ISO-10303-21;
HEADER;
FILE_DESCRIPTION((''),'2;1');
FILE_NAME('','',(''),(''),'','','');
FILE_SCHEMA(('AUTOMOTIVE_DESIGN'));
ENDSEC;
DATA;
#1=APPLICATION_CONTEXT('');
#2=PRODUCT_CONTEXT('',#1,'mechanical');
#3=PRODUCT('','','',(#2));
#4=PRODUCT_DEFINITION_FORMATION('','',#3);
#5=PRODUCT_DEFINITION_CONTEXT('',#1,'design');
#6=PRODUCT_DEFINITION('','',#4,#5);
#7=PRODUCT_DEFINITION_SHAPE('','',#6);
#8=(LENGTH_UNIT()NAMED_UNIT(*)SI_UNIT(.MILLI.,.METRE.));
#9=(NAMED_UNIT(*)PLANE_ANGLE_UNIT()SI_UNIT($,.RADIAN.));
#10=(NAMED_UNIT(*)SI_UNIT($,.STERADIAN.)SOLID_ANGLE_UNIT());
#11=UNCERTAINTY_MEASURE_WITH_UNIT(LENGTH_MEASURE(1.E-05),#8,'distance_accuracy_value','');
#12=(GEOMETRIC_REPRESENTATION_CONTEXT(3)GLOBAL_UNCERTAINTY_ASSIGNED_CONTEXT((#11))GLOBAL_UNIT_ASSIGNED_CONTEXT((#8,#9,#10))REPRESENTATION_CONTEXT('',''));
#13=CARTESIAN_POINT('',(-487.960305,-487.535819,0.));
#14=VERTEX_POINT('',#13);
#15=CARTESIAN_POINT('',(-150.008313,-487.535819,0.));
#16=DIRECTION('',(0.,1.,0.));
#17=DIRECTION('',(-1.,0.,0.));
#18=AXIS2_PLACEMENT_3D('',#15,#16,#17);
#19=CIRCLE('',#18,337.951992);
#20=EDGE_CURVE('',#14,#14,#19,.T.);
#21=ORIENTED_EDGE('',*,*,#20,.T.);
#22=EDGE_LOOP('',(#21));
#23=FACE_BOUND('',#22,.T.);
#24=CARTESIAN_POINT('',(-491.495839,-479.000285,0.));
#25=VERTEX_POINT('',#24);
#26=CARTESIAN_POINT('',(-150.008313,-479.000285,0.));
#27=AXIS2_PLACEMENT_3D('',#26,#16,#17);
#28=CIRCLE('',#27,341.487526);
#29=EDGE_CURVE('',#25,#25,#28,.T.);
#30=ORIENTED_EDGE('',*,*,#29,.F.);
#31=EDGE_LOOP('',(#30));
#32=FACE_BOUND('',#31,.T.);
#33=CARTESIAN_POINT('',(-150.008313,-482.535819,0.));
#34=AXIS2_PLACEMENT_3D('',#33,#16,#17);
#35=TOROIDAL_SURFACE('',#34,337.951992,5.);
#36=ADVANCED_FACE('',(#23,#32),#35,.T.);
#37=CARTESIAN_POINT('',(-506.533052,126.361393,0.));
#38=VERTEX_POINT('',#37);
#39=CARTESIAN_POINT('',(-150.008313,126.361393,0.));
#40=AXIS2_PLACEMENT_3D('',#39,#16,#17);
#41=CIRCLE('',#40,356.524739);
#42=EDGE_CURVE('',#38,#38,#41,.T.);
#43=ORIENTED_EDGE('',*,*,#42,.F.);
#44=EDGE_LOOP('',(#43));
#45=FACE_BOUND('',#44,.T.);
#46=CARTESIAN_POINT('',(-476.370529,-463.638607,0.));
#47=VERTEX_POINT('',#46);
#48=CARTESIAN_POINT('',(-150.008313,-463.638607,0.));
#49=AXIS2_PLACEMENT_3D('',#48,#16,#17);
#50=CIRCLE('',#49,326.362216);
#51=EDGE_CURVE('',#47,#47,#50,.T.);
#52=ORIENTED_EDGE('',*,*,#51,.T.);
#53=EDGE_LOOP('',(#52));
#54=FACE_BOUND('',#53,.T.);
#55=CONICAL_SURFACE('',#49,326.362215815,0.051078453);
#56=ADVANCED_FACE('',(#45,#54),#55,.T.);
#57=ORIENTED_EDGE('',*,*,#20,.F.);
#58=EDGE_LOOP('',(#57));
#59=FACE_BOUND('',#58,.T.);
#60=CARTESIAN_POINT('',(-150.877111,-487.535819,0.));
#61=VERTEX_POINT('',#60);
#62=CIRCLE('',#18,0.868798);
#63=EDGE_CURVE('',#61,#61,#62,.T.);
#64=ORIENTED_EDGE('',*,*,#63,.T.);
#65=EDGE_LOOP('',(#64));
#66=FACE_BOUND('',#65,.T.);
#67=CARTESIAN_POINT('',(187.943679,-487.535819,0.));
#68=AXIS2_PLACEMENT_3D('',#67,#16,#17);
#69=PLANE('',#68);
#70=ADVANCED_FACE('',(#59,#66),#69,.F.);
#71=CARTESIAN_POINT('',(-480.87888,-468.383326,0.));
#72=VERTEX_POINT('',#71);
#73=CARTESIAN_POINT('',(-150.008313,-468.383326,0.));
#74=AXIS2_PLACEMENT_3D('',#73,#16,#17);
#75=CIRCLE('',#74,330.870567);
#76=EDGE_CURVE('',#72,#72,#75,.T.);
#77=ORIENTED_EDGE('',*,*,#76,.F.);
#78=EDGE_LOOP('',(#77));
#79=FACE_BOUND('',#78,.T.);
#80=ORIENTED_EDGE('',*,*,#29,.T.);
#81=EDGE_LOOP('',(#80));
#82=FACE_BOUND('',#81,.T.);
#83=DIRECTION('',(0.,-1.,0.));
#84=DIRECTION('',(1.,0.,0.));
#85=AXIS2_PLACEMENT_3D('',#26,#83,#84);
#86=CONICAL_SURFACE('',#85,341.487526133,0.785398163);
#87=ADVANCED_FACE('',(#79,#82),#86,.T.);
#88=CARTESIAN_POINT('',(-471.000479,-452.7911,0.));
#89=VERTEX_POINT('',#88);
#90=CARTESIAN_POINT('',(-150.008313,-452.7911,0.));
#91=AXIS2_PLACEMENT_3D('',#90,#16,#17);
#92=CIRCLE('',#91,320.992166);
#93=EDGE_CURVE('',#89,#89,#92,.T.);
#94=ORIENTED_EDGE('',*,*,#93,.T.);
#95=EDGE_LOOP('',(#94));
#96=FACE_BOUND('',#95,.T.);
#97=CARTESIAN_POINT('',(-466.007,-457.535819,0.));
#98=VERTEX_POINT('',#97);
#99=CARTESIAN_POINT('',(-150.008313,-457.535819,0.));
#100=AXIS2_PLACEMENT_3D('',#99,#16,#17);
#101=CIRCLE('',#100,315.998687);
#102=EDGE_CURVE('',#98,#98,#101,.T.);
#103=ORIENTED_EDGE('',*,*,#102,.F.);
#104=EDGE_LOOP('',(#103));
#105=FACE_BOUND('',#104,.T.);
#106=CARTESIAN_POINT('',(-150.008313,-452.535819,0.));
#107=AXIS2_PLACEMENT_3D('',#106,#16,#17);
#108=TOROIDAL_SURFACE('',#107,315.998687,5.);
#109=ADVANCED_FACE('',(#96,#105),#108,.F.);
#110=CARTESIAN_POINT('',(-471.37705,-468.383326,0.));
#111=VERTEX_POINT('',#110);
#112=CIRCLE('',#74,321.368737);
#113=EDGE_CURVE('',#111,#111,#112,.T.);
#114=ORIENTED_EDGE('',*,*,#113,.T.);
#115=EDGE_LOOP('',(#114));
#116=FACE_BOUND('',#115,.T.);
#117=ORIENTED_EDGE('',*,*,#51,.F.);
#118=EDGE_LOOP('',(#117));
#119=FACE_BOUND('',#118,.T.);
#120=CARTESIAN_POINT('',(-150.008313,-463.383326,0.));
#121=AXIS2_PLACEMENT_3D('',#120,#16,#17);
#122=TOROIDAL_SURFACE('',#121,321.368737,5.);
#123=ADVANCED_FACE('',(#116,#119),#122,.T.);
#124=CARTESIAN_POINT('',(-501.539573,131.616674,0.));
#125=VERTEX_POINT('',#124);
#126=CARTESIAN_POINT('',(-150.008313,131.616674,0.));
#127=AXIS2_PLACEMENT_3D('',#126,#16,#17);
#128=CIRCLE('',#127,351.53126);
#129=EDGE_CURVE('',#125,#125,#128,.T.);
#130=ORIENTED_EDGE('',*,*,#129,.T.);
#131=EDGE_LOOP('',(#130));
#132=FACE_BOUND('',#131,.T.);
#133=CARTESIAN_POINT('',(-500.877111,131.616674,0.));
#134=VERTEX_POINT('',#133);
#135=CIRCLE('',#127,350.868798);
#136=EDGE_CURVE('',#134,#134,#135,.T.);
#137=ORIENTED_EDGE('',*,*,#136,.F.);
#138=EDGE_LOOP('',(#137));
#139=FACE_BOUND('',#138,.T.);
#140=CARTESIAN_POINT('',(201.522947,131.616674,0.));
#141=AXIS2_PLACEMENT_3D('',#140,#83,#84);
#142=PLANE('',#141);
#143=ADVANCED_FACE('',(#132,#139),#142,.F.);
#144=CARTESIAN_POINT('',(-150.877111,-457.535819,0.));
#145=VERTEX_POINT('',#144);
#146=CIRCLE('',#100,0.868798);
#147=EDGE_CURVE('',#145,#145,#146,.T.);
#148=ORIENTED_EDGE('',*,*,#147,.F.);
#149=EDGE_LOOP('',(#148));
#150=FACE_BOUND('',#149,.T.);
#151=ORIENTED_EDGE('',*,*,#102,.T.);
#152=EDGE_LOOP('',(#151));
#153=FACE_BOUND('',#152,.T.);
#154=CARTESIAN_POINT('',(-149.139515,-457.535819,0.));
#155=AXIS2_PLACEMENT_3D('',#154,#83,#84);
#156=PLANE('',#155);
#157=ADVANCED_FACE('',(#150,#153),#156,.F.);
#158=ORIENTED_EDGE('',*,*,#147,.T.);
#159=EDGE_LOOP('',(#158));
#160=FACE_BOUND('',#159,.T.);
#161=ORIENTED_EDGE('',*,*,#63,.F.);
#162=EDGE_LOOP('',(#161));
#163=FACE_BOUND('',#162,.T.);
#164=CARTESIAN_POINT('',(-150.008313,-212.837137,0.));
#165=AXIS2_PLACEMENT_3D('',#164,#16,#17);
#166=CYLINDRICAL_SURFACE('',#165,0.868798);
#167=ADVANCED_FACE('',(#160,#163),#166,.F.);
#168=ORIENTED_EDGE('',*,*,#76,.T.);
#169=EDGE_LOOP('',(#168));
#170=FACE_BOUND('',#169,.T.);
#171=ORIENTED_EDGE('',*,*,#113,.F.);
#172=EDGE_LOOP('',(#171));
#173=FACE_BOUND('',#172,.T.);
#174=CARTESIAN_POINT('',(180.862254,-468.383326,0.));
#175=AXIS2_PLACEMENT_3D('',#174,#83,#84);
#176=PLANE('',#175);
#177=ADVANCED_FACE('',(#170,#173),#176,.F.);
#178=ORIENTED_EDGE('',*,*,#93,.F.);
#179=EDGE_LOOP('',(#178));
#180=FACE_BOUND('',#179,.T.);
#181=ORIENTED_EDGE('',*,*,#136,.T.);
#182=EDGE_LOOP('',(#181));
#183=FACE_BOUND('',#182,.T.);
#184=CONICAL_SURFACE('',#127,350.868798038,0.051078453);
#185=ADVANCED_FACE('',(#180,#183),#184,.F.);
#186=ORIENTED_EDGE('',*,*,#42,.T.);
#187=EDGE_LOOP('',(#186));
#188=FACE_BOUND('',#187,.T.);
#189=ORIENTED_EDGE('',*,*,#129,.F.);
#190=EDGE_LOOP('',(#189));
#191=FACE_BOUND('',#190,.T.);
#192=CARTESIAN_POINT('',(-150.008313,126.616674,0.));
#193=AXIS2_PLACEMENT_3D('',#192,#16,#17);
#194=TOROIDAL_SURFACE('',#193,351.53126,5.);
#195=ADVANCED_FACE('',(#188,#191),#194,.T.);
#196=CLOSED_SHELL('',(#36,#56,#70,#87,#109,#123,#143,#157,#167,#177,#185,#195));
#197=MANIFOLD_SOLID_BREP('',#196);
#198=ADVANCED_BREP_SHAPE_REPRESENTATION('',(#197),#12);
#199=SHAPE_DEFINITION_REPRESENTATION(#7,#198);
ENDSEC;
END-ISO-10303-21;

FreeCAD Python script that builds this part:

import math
import FreeCAD as App
import Part
import Sketcher
from FreeCAD import Vector
Q = App.Units.Quantity

doc = App.newDocument("Part")
body = doc.addObject("PartDesign::Body", "Body")

# Sketch on XY plane
sketch1 = body.newObject("Sketcher::SketchObject", "Sketch")
sketch1.AttachmentSupport = (doc.getObject("XY_Plane"), [""])
sketch1.MapMode = "FlatFace"
sketch1.addGeometry([
    Part.LineSegment(Vector(180.9, -468.4, 0), Vector(171.4, -468.4, 0)),  # 0
    Part.ArcOfCircle(Part.Circle(Vector(171.4, -463.4, 0), Vector(0, 0, 1), 5), math.radians(-90), math.radians(-3)),  # 1
    Part.LineSegment(Vector(176.4, -463.6, 0), Vector(206.5, 126.4, 0)),  # 2
    Part.ArcOfCircle(Part.Circle(Vector(201.5, 126.6, 0), Vector(0, 0, 1), 5), math.radians(-3), math.radians(90)),  # 3
    Part.LineSegment(Vector(201.5, 131.6, 0), Vector(200.9, 131.6, 0)),  # 4
    Part.LineSegment(Vector(200.9, 131.6, 0), Vector(171, -452.8, 0)),  # 5
    Part.ArcOfCircle(Part.Circle(Vector(166, -452.5, 0), Vector(0, 0, 1), 5), math.radians(-90), math.radians(-3)),  # 6
    Part.LineSegment(Vector(166, -457.5, 0), Vector(-149.1, -457.5, 0)),  # 7
    Part.LineSegment(Vector(-149.1, -457.5, 0), Vector(-149.1, -487.5, 0)),  # 8
    Part.LineSegment(Vector(-149.1, -487.5, 0), Vector(187.9, -487.5, 0)),  # 9
    Part.ArcOfCircle(Part.Circle(Vector(187.9, -482.5, 0), Vector(0, 0, 1), 5), math.radians(-90), math.radians(45)),  # 10
    Part.LineSegment(Vector(191.5, -479, 0), Vector(180.9, -468.4, 0)),  # 11
], False)
sketch1.addGeometry(Part.LineSegment(Vector(-150, 131.6, 0), Vector(-150, -487.5, 0)), True)  # axis
sketch1.addConstraint([
    Sketcher.Constraint("Tangent", 0, 2, 1, 1),
    Sketcher.Constraint("Tangent", 1, 2, 2, 1),
    Sketcher.Constraint("Tangent", 2, 2, 3, 1),
    Sketcher.Constraint("Tangent", 3, 2, 4, 1),
    Sketcher.Constraint("Coincident", 4, 2, 5, 1),
    Sketcher.Constraint("Tangent", 5, 2, 6, 2),
    Sketcher.Constraint("Tangent", 6, 1, 7, 1),
    Sketcher.Constraint("Coincident", 7, 2, 8, 1),
    Sketcher.Constraint("Coincident", 8, 2, 9, 1),
    Sketcher.Constraint("Tangent", 9, 2, 10, 1),
    Sketcher.Constraint("Tangent", 10, 2, 11, 1),
    Sketcher.Constraint("Coincident", 11, 2, 0, 1),
    Sketcher.Constraint("Horizontal", 0),
    Sketcher.Constraint("Horizontal", 4),
    Sketcher.Constraint("Horizontal", 7),
    Sketcher.Constraint("Vertical", 8),
    Sketcher.Constraint("Horizontal", 9),
    Sketcher.Constraint("Vertical", 12),
    Sketcher.Constraint("Equal", 1, 3),
    Sketcher.Constraint("Equal", 3, 6),
    Sketcher.Constraint("Equal", 6, 10),
    Sketcher.Constraint("Parallel", 2, 5),
    Sketcher.Constraint("Horizontal", 4, 2, 12, 1),
    Sketcher.Constraint("Horizontal", 9, 2, 12, 2),
    Sketcher.Constraint("Radius", 1, Q("5 mm")),
    Sketcher.Constraint("DistanceY", 8, 2, 8, 1, Q("30 mm")),
    Sketcher.Constraint("Angle", 11, Q("135 deg")),
    Sketcher.Constraint("DistanceY", 1, 3, 3, 3, Q("590 mm")),
    Sketcher.Constraint("DistanceX", 0, 2, 0, 1, Q("9.50183 mm")),
    Sketcher.Constraint("DistanceX", 7, 2, 7, 1, Q("315.129889 mm")),
    Sketcher.Constraint("DistanceY", 5, 2, -1, 1, Q("452.7911 mm")),
    Sketcher.Constraint("DistanceX", 12, 1, 4, 2, Q("350.868798 mm")),
    Sketcher.Constraint("DistanceX", 12, 1, 7, 2, Q("0.868798 mm")),
    Sketcher.Constraint("DistanceX", 4, 2, 4, 1, Q("0.662462 mm")),
    Sketcher.Constraint("DistanceX", 9, 1, 9, 2, Q("337.083194 mm")),
    Sketcher.Constraint("DistanceX", -1, 1, 10, 3, Q("187.943679 mm")),
])
revolution = body.newObject("PartDesign::Revolution", "Revolution")
revolution.Profile = sketch1
revolution.ReferenceAxis = (sketch1, ["Axis0"])
revolution.Angle = 360

doc.recompute()
